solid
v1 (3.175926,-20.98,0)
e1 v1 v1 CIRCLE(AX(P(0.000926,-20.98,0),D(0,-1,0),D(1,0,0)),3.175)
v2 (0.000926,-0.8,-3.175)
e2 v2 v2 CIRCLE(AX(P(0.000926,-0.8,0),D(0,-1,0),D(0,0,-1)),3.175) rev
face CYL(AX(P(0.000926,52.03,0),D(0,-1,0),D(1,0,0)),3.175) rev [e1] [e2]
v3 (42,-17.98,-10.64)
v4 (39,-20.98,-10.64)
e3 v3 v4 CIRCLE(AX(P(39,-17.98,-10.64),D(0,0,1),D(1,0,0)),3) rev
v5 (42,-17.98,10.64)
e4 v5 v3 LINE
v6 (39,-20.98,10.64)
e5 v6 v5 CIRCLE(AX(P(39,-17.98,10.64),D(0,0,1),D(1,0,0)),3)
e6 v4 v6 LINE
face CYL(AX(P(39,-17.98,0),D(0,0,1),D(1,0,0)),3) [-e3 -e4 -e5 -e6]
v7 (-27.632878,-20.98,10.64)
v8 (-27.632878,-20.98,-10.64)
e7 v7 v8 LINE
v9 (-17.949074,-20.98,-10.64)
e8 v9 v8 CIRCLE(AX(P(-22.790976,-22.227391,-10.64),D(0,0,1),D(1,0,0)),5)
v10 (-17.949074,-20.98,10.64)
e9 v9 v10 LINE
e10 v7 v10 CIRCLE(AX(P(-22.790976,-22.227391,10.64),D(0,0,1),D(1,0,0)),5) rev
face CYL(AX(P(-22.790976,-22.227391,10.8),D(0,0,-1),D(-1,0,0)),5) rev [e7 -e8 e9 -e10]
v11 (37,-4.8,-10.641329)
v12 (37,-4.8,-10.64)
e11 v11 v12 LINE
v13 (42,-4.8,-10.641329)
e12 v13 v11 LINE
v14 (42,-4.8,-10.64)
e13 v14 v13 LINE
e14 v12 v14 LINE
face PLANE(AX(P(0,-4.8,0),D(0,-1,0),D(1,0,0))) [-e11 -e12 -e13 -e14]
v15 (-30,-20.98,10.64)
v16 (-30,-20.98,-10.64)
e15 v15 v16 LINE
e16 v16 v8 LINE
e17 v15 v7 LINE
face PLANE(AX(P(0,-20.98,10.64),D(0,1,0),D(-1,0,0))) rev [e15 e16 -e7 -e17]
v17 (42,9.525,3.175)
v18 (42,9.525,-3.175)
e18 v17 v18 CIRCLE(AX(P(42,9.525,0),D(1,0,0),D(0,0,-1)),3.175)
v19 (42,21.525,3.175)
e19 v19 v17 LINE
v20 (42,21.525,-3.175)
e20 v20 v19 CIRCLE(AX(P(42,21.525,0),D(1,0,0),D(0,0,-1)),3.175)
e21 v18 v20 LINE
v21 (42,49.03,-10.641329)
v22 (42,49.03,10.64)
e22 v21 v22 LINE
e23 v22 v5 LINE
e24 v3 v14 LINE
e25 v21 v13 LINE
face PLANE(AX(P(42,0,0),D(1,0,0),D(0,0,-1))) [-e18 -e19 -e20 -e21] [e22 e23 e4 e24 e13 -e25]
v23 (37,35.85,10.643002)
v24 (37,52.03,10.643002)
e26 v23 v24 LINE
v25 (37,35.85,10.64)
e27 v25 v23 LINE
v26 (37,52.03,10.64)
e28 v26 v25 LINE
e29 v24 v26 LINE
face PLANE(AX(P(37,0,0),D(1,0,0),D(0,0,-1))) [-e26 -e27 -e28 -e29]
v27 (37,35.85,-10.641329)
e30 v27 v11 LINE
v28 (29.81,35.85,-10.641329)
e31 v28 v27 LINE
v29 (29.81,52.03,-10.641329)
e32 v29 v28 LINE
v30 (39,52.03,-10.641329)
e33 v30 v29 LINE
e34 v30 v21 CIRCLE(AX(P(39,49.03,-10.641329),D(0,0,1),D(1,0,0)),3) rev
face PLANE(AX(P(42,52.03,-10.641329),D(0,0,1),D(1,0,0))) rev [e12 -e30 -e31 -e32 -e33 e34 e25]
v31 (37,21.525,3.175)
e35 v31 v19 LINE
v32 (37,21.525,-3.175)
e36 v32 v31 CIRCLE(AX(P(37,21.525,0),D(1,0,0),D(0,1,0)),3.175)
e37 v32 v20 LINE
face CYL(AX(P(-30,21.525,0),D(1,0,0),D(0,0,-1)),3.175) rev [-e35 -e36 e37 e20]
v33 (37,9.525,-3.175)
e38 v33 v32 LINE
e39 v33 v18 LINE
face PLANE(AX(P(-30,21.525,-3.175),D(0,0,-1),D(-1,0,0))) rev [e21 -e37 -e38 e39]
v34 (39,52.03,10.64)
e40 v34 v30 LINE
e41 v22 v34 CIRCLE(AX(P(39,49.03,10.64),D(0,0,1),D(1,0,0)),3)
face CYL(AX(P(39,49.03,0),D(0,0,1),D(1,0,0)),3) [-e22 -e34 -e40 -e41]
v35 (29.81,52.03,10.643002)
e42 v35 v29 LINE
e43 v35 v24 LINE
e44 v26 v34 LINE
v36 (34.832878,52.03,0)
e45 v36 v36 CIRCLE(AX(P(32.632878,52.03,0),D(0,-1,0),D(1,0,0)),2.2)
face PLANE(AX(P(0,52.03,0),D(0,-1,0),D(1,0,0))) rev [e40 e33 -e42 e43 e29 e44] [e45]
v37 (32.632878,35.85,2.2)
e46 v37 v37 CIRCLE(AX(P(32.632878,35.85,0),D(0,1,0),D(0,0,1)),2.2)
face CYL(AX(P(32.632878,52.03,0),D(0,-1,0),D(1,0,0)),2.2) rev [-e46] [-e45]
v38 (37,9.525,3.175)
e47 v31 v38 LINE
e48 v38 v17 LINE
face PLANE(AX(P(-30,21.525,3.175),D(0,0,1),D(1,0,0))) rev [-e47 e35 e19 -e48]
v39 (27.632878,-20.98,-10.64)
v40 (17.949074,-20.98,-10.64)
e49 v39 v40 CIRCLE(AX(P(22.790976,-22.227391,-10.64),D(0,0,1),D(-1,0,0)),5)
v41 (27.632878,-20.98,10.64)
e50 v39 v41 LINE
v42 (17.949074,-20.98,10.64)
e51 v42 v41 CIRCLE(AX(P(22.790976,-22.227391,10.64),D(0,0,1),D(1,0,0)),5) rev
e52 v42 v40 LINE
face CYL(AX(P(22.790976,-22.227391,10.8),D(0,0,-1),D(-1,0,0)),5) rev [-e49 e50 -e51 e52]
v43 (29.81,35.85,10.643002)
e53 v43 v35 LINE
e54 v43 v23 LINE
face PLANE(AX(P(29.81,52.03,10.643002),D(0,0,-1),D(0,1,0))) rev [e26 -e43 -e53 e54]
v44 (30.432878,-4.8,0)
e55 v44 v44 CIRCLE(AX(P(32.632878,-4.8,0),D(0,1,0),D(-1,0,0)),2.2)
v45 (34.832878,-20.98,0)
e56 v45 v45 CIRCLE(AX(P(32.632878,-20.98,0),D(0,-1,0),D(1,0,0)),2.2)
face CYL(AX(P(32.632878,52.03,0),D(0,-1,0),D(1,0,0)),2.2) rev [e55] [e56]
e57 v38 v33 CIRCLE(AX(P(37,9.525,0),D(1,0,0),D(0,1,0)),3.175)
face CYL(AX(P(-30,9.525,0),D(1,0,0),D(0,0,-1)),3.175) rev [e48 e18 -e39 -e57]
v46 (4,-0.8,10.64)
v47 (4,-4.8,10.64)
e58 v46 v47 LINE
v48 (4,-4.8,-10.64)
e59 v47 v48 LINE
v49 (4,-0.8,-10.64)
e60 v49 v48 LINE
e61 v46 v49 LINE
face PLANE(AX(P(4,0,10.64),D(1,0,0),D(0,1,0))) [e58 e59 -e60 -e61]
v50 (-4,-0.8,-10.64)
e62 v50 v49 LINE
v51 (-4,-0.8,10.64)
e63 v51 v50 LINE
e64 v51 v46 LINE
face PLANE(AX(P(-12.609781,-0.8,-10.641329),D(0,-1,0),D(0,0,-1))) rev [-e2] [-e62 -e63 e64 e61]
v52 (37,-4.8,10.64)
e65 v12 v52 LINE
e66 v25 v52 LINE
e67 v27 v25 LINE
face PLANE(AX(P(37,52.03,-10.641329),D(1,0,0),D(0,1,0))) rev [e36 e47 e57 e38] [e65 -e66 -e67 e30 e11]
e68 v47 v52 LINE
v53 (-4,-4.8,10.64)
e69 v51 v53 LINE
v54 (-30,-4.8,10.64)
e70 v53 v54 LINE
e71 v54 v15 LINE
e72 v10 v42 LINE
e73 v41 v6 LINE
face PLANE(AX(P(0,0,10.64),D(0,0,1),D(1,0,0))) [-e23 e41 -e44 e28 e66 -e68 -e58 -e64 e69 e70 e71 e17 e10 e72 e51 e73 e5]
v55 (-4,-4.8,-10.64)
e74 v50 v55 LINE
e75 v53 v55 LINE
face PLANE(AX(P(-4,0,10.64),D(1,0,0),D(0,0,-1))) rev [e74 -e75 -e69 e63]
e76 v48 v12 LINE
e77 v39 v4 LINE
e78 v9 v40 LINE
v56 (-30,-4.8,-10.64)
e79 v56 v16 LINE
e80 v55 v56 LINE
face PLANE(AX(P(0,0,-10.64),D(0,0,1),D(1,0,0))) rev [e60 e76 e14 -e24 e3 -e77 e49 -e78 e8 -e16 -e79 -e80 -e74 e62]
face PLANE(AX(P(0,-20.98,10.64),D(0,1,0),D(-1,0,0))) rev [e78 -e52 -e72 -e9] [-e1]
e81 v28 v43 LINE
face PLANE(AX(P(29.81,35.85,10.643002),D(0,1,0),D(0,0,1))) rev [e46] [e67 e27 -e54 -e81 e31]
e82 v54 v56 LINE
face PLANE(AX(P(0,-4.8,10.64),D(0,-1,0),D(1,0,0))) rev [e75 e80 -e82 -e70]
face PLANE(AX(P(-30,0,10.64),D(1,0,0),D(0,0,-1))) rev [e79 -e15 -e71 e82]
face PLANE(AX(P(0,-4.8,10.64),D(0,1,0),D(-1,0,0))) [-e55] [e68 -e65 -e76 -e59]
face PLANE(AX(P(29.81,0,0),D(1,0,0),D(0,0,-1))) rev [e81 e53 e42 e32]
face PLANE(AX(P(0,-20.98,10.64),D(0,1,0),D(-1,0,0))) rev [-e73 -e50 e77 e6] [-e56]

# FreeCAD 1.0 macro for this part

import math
import FreeCAD as App
import Part
import Sketcher

V = App.Vector


def edges_at(feature, points):
    """Names of the edges that pass closest to the given points."""
    edges = feature.Shape.Edges
    near = lambda p: min(range(len(edges)), key=lambda i: edges[i].distToShape(Part.Vertex(*p))[0])
    return sorted({f"Edge{near(p) + 1}" for p in points})


def add_polygon(sketch, points):
    """Adds a closed chain of lines whose ends are joined by coincident constraints."""
    first, n = sketch.GeometryCount, len(points)
    for a, b in zip(points, points[1:] + points[:1]):
        sketch.addGeometry(Part.LineSegment(App.Vector(*a, 0), App.Vector(*b, 0)), False)
    for i in range(n):
        sketch.addConstraint(Sketcher.Constraint("Coincident", first + i, 2, first + (i + 1) % n, 1))

doc = App.newDocument("Part")
body = doc.addObject("PartDesign::Body", "Body")

# Sketch on XY plane
sketch1 = body.newObject("Sketcher::SketchObject", "Sketch")
sketch1.AttachmentSupport = (doc.getObject("XY_Plane"), [""])
sketch1.MapMode = "FlatFace"
add_polygon(sketch1, [(-10.1, 0), (10.1, 0), (10.1, 1.7), (6.3, 7), (-6.3, 7), (-10.1, 1.7)])  # lines 0-5
sketch1.addConstraint(Sketcher.Constraint("Horizontal", 0))
sketch1.addConstraint(Sketcher.Constraint("Vertical", 1))
sketch1.addConstraint(Sketcher.Constraint("Horizontal", 3))
sketch1.addConstraint(Sketcher.Constraint("Vertical", 5))
sketch1.addConstraint(Sketcher.Constraint("Symmetric", 0, 2, 5, 2, -1, 1))
sketch1.addConstraint(Sketcher.Constraint("Horizontal", 1, 2, 4, 2))
sketch1.addConstraint(Sketcher.Constraint("Equal", 2, 4))
sketch1.addConstraint(Sketcher.Constraint("DistanceX", 0, 1, 0, 2, 20.2))
sketch1.addConstraint(Sketcher.Constraint("DistanceY", -1, 1, 2, 2, 7.0))
sketch1.addConstraint(Sketcher.Constraint("DistanceX", 3, 2, 3, 1, 12.509609))
sketch1.addConstraint(Sketcher.Constraint("DistanceY", 1, 1, 1, 2, 1.709944))
pad1 = body.newObject("PartDesign::Pad", "Pad")
pad1.Profile = sketch1
pad1.Length = 10.8

# Sketch on XY plane
sketch2 = body.newObject("Sketcher::SketchObject", "Sketch001")
sketch2.AttachmentSupport = (doc.getObject("XY_Plane"), [""])
sketch2.MapMode = "FlatFace"
add_polygon(sketch2, [(-4, 0), (-4, -4.8), (-30, -4.8), (-30, -21), (30, -21), (30, -4.8), (4, -4.8), (4, 0)])  # lines 0-7
sketch2.addConstraint(Sketcher.Constraint("Vertical", 0))
sketch2.addConstraint(Sketcher.Constraint("Horizontal", 1))
sketch2.addConstraint(Sketcher.Constraint("Vertical", 2))
sketch2.addConstraint(Sketcher.Constraint("Horizontal", 3))
sketch2.addConstraint(Sketcher.Constraint("Vertical", 4))
sketch2.addConstraint(Sketcher.Constraint("Horizontal", 5))
sketch2.addConstraint(Sketcher.Constraint("Vertical", 6))
sketch2.addConstraint(Sketcher.Constraint("Horizontal", 7))
sketch2.addConstraint(Sketcher.Constraint("Symmetric", 6, 2, 7, 2, -1, 1))
sketch2.addConstraint(Sketcher.Constraint("Symmetric", 1, 2, 4, 2, -2))
sketch2.addConstraint(Sketcher.Constraint("DistanceX", 1, 2, 1, 1, 26.0))
sketch2.addConstraint(Sketcher.Constraint("DistanceX", 3, 1, 3, 2, 60.0))
sketch2.addConstraint(Sketcher.Constraint("DistanceY", 0, 2, 0, 1, 4.8))
sketch2.addConstraint(Sketcher.Constraint("DistanceY", 2, 2, 2, 1, 16.18))
pad2 = body.newObject("PartDesign::Pad", "Pad001")
pad2.Profile = sketch2
pad2.Length = 21.28
pad2.Midplane = True

# Sketch on XY plane
sketch3 = body.newObject("Sketcher::SketchObject", "Sketch002")
sketch3.AttachmentSupport = (doc.getObject("XY_Plane"), [""])
sketch3.MapMode = "FlatFace"
sketch3.addGeometry(Part.Circle(V(-23, -22, 0), V(0, 0, 1), 5), False)
sketch3.addGeometry(Part.Circle(V(23, -22, 0), V(0, 0, 1), 5), False)
sketch3.addConstraint(Sketcher.Constraint("Equal", 0, 1))
sketch3.addConstraint(Sketcher.Constraint("Symmetric", 0, 3, 1, 3, -2))
sketch3.addConstraint(Sketcher.Constraint("Diameter", 0, 10.0))
sketch3.addConstraint(Sketcher.Constraint("DistanceY", 0, 3, -1, 1, 22.227391))
sketch3.addConstraint(Sketcher.Constraint("DistanceX", 0, 3, -1, 1, 22.790976))
pocket1 = body.newObject("PartDesign::Pocket", "Pocket")
pocket1.Profile = sketch3
pocket1.Type = "ThroughAll"
pocket1.Midplane = True
doc.recompute()

fillet = body.newObject("PartDesign::Fillet", "Fillet")
fillet.Base = (pocket1, edges_at(pocket1, [
    (-10.1, 0, 5.4),
    (-10.1, 1.71, 5.4),
    (-6.255, 7, 5.4),
    (6.255, 7, 5.4),
    (10.1, 1.71, 5.4),
    (10.1, 0, 5.4),
]))
fillet.Radius = 1

# Sketch on YZ plane
sketch4 = body.newObject("Sketcher::SketchObject", "Sketch003")
sketch4.AttachmentSupport = (doc.getObject("YZ_Plane"), [""])
sketch4.MapMode = "FlatFace"
sketch4.AttachmentOffset = App.Placement(V(0, 0, 30), App.Rotation())
add_polygon(sketch4, [(-5, 11), (-21, 11), (-21, -11), (-5, -11)])  # lines 0-3
sketch4.addConstraint(Sketcher.Constraint("Horizontal", 0))
sketch4.addConstraint(Sketcher.Constraint("Vertical", 1))
sketch4.addConstraint(Sketcher.Constraint("Horizontal", 2))
sketch4.addConstraint(Sketcher.Constraint("Vertical", 3))
sketch4.addConstraint(Sketcher.Constraint("DistanceX", 0, 2, 0, 1, 16.18))
sketch4.addConstraint(Sketcher.Constraint("DistanceY", 1, 2, 1, 1, 21.28))
sketch4.addConstraint(Sketcher.Constraint("DistanceX", 2, 2, -1, 1, 4.8))
sketch4.addConstraint(Sketcher.Constraint("DistanceY", -1, 1, 0, 2, 10.64))
pad3 = body.newObject("PartDesign::Pad", "Pad002")
pad3.Profile = sketch4
pad3.Length = 12

# Sketch on XZ plane
sketch5 = body.newObject("Sketcher::SketchObject", "Sketch004")
sketch5.AttachmentSupport = (doc.getObject("XZ_Plane"), [""])
sketch5.MapMode = "FlatFace"
sketch5.AttachmentOffset = App.Placement(V(0, 0, 4.8), App.Rotation())
add_polygon(sketch5, [(37, -11), (37, 11), (42, 11), (42, -11)])  # lines 0-3
sketch5.addConstraint(Sketcher.Constraint("Vertical", 0))
sketch5.addConstraint(Sketcher.Constraint("Horizontal", 1))
sketch5.addConstraint(Sketcher.Constraint("Vertical", 2))
sketch5.addConstraint(Sketcher.Constraint("Horizontal", 3))
sketch5.addConstraint(Sketcher.Constraint("DistanceX", 1, 1, 1, 2, 5.0))
sketch5.addConstraint(Sketcher.Constraint("DistanceX", -1, 1, 0, 2, 37.0))
sketch5.addConstraint(Sketcher.Constraint("DistanceY", -1, 1, 0, 2, 10.64))
sketch5.addConstraint(Sketcher.Constraint("DistanceY", 0, 1, 0, 2, 21.281329))
pad4 = body.newObject("PartDesign::Pad", "Pad003")
pad4.Profile = sketch5
pad4.Length = 56.83
pad4.Reversed = True

# Sketch on YZ plane
sketch6 = body.newObject("Sketcher::SketchObject", "Sketch005")
sketch6.AttachmentSupport = (doc.getObject("YZ_Plane"), [""])
sketch6.MapMode = "FlatFace"
sketch6.AttachmentOffset = App.Placement(V(0, 0, 37), App.Rotation())
add_polygon(sketch6, [(52, -11), (36, -11), (36, 11), (52, 11)])  # lines 0-3
sketch6.addConstraint(Sketcher.Constraint("Horizontal", 0))
sketch6.addConstraint(Sketcher.Constraint("Vertical", 1))
sketch6.addConstraint(Sketcher.Constraint("Horizontal", 2))
sketch6.addConstraint(Sketcher.Constraint("Vertical", 3))
sketch6.addConstraint(Sketcher.Constraint("DistanceX", 0, 2, 0, 1, 16.18))
sketch6.addConstraint(Sketcher.Constraint("DistanceX", -1, 1, 0, 2, 35.85))
sketch6.addConstraint(Sketcher.Constraint("DistanceY", 1, 1, 1, 2, 21.284331))
sketch6.addConstraint(Sketcher.Constraint("DistanceY", 0, 2, -1, 1, 10.641329))
pad5 = body.newObject("PartDesign::Pad", "Pad004")
pad5.Profile = sketch6
pad5.Length = 7.19
pad5.Reversed = True
doc.recompute()

fillet2 = body.newObject("PartDesign::Fillet", "Fillet001")
fillet2.Base = (pad5, edges_at(pad5, [(42, -20.98, 0), (42, 52.03, -0.001)]))
fillet2.Radius = 3

# Sketch on XZ plane
sketch7 = body.newObject("Sketcher::SketchObject", "Sketch006")
sketch7.AttachmentSupport = (doc.getObject("XZ_Plane"), [""])
sketch7.MapMode = "FlatFace"
sketch7.AttachmentOffset = App.Placement(V(0, 0, 20.98), App.Rotation())
sketch7.addGeometry(Part.Circle(V(32.6, 0, 0), V(0, 0, 1), 2.2), False)
sketch7.addConstraint(Sketcher.Constraint("PointOnObject", 0, 3, -1))
sketch7.addConstraint(Sketcher.Constraint("Diameter", 0, 4.4))
sketch7.addConstraint(Sketcher.Constraint("DistanceX", -1, 1, 0, 3, 32.632878))
pocket2 = body.newObject("PartDesign::Pocket", "Pocket001")
pocket2.Profile = sketch7
pocket2.Type = "ThroughAll"

# Sketch on XZ plane
sketch8 = body.newObject("Sketcher::SketchObject", "Sketch007")
sketch8.AttachmentSupport = (doc.getObject("XZ_Plane"), [""])
sketch8.MapMode = "FlatFace"
sketch8.AttachmentOffset = App.Placement(V(0, 0, 20.98), App.Rotation())
sketch8.addGeometry(Part.Circle(V(0, 0, 0), V(0, 0, 1), 3.2), False)
sketch8.addConstraint(Sketcher.Constraint("PointOnObject", 0, 3, -1))
sketch8.addConstraint(Sketcher.Constraint("Diameter", 0, 6.35))
sketch8.addConstraint(Sketcher.Constraint("DistanceX", -1, 1, 0, 3, 0.000926))
pocket3 = body.newObject("PartDesign::Pocket", "Pocket002")
pocket3.Profile = sketch8
pocket3.Type = "ThroughAll"

# Sketch on XY plane
sketch9 = body.newObject("Sketcher::SketchObject", "Sketch008")
sketch9.AttachmentSupport = (doc.getObject("XY_Plane"), [""])
sketch9.MapMode = "FlatFace"
sketch9.AttachmentOffset = App.Placement(V(0, 0, 10.8), App.Rotation())
add_polygon(sketch9, [(-13, 9), (-13, -1), (12, -1), (12, 9)])  # lines 0-3
sketch9.addConstraint(Sketcher.Constraint("Vertical", 0))
sketch9.addConstraint(Sketcher.Constraint("Horizontal", 1))
sketch9.addConstraint(Sketcher.Constraint("Vertical", 2))
sketch9.addConstraint(Sketcher.Constraint("Horizontal", 3))
sketch9.addConstraint(Sketcher.Constraint("DistanceY", 0, 2, -1, 1, 0.8))
sketch9.addConstraint(Sketcher.Constraint("DistanceX", 1, 1, 1, 2, 24.977297))
sketch9.addConstraint(Sketcher.Constraint("DistanceY", 0, 2, 0, 1, 9.721484))
sketch9.addConstraint(Sketcher.Constraint("DistanceX", 0, 2, -1, 1, 12.609781))
pocket4 = body.newObject("PartDesign::Pocket", "Pocket003")
pocket4.Profile = sketch9
pocket4.Type = "ThroughAll"

# Sketch on YZ plane
sketch10 = body.newObject("Sketcher::SketchObject", "Sketch009")
sketch10.AttachmentSupport = (doc.getObject("YZ_Plane"), [""])
sketch10.MapMode = "FlatFace"
sketch10.AttachmentOffset = App.Placement(V(0, 0, 42), App.Rotation())
sketch10.addGeometry(Part.LineSegment(V(9.5, -3.2, 0), V(21.5, -3.2, 0)), False)
sketch10.addGeometry(Part.ArcOfCircle(Part.Circle(V(21.5, 0, 0), V(0, 0, 1), 3.2), math.radians(-90), math.radians(90)), False)
sketch10.addGeometry(Part.LineSegment(V(21.5, 3.2, 0), V(9.5, 3.2, 0)), False)
sketch10.addGeometry(Part.ArcOfCircle(Part.Circle(V(9.5, 0, 0), V(0, 0, 1), 3.2), math.radians(90), math.radians(270)), False)
sketch10.addConstraint(Sketcher.Constraint("Tangent", 0, 2, 1, 1))
sketch10.addConstraint(Sketcher.Constraint("Tangent", 1, 2, 2, 1))
sketch10.addConstraint(Sketcher.Constraint("Tangent", 2, 2, 3, 1))
sketch10.addConstraint(Sketcher.Constraint("Tangent", 3, 2, 0, 1))
sketch10.addConstraint(Sketcher.Constraint("Horizontal", 0))
sketch10.addConstraint(Sketcher.Constraint("Horizontal", 2))
sketch10.addConstraint(Sketcher.Constraint("PointOnObject", 1, 3, -1))
sketch10.addConstraint(Sketcher.Constraint("DistanceX", 0, 1, 0, 2, 12.0))
sketch10.addConstraint(Sketcher.Constraint("Radius", 1, 3.175))
sketch10.addConstraint(Sketcher.Constraint("DistanceX", -1, 1, 1, 3, 21.525))
pocket5 = body.newObject("PartDesign::Pocket", "Pocket004")
pocket5.Profile = sketch10
pocket5.Type = "ThroughAll"

doc.recompute()
